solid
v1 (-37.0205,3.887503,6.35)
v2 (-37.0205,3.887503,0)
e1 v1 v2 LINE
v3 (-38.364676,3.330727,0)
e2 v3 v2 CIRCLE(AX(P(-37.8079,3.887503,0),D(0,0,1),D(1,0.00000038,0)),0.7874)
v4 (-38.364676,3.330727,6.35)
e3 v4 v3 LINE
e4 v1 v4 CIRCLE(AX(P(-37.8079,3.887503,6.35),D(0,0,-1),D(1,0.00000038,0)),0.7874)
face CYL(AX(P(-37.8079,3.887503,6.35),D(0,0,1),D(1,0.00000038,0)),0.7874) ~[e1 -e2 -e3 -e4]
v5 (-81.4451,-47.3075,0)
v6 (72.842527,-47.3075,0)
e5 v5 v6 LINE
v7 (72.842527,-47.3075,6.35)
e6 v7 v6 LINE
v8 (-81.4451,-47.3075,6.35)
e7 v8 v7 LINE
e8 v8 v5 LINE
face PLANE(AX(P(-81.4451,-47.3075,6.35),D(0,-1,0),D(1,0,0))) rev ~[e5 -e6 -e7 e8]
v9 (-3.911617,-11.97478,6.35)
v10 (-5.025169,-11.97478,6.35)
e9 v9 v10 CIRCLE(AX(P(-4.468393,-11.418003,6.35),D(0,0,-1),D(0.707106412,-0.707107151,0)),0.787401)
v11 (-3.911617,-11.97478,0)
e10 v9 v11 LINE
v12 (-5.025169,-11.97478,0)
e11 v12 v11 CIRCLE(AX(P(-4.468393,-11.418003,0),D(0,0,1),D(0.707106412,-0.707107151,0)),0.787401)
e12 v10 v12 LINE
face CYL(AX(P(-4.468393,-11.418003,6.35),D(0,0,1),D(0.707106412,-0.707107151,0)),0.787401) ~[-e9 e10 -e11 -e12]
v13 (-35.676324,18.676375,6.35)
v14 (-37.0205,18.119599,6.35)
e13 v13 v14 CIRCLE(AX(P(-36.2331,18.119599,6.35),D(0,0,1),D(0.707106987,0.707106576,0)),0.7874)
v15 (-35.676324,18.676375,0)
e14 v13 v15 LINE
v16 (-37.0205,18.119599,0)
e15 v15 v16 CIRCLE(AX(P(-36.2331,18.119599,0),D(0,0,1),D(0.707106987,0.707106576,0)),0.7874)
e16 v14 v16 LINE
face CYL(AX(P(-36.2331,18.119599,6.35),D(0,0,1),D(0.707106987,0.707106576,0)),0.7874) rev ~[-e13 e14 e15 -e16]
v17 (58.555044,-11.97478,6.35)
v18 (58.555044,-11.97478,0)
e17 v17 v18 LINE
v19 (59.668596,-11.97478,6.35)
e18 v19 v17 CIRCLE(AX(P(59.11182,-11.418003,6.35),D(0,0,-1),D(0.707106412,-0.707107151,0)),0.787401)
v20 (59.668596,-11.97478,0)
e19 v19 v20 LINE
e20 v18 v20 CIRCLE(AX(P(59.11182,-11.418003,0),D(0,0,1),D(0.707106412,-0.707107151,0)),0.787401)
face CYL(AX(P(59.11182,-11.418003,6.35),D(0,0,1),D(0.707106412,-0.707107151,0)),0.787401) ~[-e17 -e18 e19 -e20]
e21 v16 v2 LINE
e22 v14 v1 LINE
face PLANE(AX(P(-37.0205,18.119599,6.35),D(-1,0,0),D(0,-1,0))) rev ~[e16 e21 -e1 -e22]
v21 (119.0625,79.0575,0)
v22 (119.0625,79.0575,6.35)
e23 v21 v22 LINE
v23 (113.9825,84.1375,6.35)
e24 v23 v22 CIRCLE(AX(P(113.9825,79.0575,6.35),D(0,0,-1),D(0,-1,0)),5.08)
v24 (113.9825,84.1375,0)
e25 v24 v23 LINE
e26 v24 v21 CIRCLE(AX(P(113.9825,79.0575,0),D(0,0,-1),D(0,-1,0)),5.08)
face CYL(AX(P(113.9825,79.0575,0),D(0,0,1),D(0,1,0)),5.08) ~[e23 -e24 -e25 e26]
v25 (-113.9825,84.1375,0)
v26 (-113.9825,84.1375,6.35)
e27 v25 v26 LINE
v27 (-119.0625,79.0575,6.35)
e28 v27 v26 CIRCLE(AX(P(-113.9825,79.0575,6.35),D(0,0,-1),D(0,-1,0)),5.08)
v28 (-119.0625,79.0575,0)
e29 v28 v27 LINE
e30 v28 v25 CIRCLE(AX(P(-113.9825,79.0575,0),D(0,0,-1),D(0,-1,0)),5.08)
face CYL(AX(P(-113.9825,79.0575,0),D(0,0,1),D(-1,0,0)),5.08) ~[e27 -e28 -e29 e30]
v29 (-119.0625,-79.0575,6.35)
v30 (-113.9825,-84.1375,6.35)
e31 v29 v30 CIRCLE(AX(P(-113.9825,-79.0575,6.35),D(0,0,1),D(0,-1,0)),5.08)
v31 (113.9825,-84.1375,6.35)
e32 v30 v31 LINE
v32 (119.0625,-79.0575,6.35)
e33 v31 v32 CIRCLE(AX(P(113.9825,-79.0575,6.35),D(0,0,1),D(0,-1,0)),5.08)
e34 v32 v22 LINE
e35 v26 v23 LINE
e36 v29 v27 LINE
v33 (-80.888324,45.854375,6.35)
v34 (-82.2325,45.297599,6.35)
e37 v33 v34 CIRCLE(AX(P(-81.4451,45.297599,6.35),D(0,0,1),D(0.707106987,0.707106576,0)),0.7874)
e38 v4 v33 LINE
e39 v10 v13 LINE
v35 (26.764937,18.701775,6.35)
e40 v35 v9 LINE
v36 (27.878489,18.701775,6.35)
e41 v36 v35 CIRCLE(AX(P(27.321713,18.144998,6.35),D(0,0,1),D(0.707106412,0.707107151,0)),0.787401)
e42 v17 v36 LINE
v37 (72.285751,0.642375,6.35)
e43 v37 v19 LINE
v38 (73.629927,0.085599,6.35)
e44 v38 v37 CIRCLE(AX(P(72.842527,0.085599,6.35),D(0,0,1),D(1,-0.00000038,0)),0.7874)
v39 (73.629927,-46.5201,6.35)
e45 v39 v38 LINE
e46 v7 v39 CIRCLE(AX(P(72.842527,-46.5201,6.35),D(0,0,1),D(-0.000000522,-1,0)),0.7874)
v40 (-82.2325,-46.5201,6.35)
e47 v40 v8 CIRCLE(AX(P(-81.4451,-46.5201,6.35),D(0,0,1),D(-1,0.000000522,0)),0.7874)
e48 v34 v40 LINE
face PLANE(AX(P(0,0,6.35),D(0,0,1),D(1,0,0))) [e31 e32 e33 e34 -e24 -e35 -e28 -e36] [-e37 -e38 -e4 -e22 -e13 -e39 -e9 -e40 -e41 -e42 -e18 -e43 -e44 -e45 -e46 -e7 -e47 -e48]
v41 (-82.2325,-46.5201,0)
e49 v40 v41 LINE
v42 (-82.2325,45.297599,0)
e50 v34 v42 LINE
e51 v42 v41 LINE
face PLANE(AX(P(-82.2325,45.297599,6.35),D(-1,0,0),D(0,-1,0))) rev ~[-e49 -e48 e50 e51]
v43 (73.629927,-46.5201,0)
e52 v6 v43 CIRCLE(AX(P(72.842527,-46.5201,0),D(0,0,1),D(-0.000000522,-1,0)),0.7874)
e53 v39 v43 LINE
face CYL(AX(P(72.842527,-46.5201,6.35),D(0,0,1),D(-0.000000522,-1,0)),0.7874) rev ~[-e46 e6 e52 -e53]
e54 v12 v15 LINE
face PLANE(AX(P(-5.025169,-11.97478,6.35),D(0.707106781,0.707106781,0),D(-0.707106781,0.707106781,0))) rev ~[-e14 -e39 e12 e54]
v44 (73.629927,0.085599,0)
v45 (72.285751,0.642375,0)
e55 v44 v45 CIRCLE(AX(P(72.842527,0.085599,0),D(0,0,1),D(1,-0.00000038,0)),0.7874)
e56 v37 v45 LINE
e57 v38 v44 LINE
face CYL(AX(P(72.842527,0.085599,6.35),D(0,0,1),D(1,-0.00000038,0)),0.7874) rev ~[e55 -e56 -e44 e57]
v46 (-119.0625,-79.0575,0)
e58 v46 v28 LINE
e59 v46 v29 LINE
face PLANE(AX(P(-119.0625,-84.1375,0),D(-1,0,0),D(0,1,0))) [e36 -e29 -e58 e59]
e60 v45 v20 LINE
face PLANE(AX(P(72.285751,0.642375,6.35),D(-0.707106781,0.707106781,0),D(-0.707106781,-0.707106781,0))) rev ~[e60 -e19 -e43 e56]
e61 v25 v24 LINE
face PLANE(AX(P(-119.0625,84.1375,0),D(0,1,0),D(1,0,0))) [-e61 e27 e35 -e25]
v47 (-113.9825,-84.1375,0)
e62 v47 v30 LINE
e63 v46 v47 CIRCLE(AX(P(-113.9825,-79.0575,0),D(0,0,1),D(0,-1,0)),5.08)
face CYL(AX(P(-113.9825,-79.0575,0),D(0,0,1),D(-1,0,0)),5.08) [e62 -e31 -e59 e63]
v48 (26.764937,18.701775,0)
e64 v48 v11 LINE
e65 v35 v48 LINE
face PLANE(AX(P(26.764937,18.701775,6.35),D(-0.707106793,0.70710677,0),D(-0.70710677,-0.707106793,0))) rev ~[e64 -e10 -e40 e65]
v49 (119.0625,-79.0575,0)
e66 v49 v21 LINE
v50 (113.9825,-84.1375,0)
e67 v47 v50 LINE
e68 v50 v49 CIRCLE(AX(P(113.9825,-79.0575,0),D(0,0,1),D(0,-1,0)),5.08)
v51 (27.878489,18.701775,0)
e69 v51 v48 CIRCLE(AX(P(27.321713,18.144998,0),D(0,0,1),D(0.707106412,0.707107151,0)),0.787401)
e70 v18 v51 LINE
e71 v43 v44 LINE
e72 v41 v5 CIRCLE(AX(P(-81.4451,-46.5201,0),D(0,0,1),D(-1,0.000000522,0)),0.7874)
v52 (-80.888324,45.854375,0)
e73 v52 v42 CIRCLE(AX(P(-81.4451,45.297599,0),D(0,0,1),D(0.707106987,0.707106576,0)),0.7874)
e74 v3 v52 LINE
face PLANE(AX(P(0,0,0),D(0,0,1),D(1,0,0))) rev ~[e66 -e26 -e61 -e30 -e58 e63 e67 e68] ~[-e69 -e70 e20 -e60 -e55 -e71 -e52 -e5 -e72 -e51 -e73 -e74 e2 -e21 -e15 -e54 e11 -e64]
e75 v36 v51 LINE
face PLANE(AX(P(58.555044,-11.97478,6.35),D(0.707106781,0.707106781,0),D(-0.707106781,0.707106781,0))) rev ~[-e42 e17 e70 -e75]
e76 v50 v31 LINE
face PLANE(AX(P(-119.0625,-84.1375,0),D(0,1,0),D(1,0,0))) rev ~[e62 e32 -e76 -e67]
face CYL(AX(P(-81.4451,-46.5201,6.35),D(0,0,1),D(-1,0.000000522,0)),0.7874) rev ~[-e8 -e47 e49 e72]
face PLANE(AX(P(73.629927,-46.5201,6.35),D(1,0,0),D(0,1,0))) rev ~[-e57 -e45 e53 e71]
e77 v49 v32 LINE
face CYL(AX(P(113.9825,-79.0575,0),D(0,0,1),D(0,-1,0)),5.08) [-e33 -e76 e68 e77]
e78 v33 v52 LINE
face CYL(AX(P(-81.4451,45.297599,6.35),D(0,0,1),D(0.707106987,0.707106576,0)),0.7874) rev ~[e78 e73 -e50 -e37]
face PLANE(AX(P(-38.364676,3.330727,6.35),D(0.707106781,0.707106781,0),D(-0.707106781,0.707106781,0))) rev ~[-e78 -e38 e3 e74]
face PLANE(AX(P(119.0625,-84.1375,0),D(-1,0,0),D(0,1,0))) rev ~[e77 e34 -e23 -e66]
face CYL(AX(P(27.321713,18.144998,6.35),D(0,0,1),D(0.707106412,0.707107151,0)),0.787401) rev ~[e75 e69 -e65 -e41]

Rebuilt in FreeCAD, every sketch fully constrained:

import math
import FreeCAD as App
import Part
import Sketcher

V = App.Vector
Q = App.Units.Quantity


def edges_at(feature, points):
    """Names of the edges that pass closest to the given points."""
    edges = feature.Shape.Edges
    near = lambda p: min(range(len(edges)), key=lambda i: edges[i].distToShape(Part.Vertex(*p))[0])
    return sorted({f"Edge{near(p) + 1}" for p in points})


def add_polygon(sketch, points):
    """Adds a closed chain of lines whose ends are joined by coincident constraints."""
    first, n = sketch.GeometryCount, len(points)
    for a, b in zip(points, points[1:] + points[:1]):
        sketch.addGeometry(Part.LineSegment(App.Vector(*a, 0), App.Vector(*b, 0)), False)
    for i in range(n):
        sketch.addConstraint(Sketcher.Constraint("Coincident", first + i, 2, first + (i + 1) % n, 1))

doc = App.newDocument("Part")
body = doc.addObject("PartDesign::Body", "Body")

# Sketch on XY plane
sketch1 = body.newObject("Sketcher::SketchObject", "Sketch")
sketch1.AttachmentSupport = (doc.getObject("XY_Plane"), [""])
sketch1.MapMode = "FlatFace"
add_polygon(sketch1, [(-119, 84), (-119, -84), (119, -84), (119, 84)])  # lines 0-3
sketch1.addConstraint(Sketcher.Constraint("Vertical", 0))
sketch1.addConstraint(Sketcher.Constraint("Horizontal", 1))
sketch1.addConstraint(Sketcher.Constraint("Vertical", 2))
sketch1.addConstraint(Sketcher.Constraint("Horizontal", 3))
sketch1.addConstraint(Sketcher.Constraint("Symmetric", 0, 2, 2, 2, -1, 1))
sketch1.addConstraint(Sketcher.Constraint("DistanceX", 1, 1, 1, 2, Q("9.375 in")))
sketch1.addConstraint(Sketcher.Constraint("DistanceY", 0, 2, 0, 1, Q("6.625 in")))
pad1 = body.newObject("PartDesign::Pad", "Pad")
pad1.Profile = sketch1
pad1.Length = Q("0.25 in")

# Sketch on XY plane
sketch2 = body.newObject("Sketcher::SketchObject", "Sketch001")
sketch2.AttachmentSupport = (doc.getObject("XY_Plane"), [""])
sketch2.MapMode = "FlatFace"
sketch2.AttachmentOffset = App.Placement(V(0, 0, 0.25 * 25.4), App.Rotation())
add_polygon(sketch2, [(-36, -1), (-81, 44), (-81, -46), (72, -46), (72, -1), (59, -14), (27, 17), (-4, -14), (-36, 17)])  # lines 0-8
sketch2.addConstraint(Sketcher.Constraint("Vertical", 1))
sketch2.addConstraint(Sketcher.Constraint("Horizontal", 2))
sketch2.addConstraint(Sketcher.Constraint("Vertical", 3))
sketch2.addConstraint(Sketcher.Constraint("Vertical", 8))
sketch2.addConstraint(Sketcher.Constraint("Perpendicular", 0, 4))
sketch2.addConstraint(Sketcher.Constraint("Perpendicular", 4, 5))
sketch2.addConstraint(Sketcher.Constraint("Perpendicular", 5, 6))
sketch2.addConstraint(Sketcher.Constraint("Perpendicular", 6, 7))
sketch2.addConstraint(Sketcher.Constraint("Horizontal", 4, 2, 6, 2))
sketch2.addConstraint(Sketcher.Constraint("Horizontal", 3, 2, 8, 2))
sketch2.addConstraint(Sketcher.Constraint("Equal", 5, 6))
sketch2.addConstraint(Sketcher.Constraint("DistanceY", 1, 2, 1, 1, Q("3.55 in")))
sketch2.addConstraint(Sketcher.Constraint("DistanceY", 3, 1, 3, 2, Q("1.77 in")))
sketch2.addConstraint(Sketcher.Constraint("DistanceY", 8, 2, 8, 1, Q("0.71 in")))
sketch2.addConstraint(Sketcher.Constraint("DistanceY", 2, 2, 5, 2, Q("2.5 in")))
sketch2.addConstraint(Sketcher.Constraint("Distance", 5, Q("1.77 in")))
sketch2.addConstraint(Sketcher.Constraint("DistanceX", 0, 2, -1, 1, Q("3.1875 in")))
sketch2.addConstraint(Sketcher.Constraint("DistanceY", 1, 2, -1, 1, Q("1.8125 in")))
pocket1 = body.newObject("PartDesign::Pocket", "Pocket")
pocket1.Profile = sketch2
pocket1.Length = Q("1 in")

# Sketch on XY plane
sketch3 = body.newObject("Sketcher::SketchObject", "Sketch002")
sketch3.AttachmentSupport = (doc.getObject("XY_Plane"), [""])
sketch3.MapMode = "FlatFace"
sketch3.AttachmentOffset = App.Placement(V(0, 0, 0.25 * 25.4), App.Rotation())
sketch3.addGeometry(Part.ArcOfCircle(Part.Circle(V(-36.2, 18.1, 0), V(0, 0, 1), 0.8), math.radians(45), math.radians(180)), False)
sketch3.addGeometry(Part.LineSegment(V(-37, 18.1, 0), V(-37, 3.9, 0)), False)
sketch3.addGeometry(Part.ArcOfCircle(Part.Circle(V(-37.8, 3.9, 0), V(0, 0, 1), 0.8), math.radians(-135), math.radians(0)), False)
sketch3.addGeometry(Part.LineSegment(V(-38.4, 3.3, 0), V(-80.9, 45.9, 0)), False)
sketch3.addGeometry(Part.ArcOfCircle(Part.Circle(V(-81.4, 45.3, 0), V(0, 0, 1), 0.8), math.radians(45), math.radians(180)), False)
sketch3.addGeometry(Part.LineSegment(V(-82.2, 45.3, 0), V(-82.2, -46.5, 0)), False)
sketch3.addGeometry(Part.ArcOfCircle(Part.Circle(V(-81.4, -46.5, 0), V(0, 0, 1), 0.8), math.radians(180), math.radians(270)), False)
sketch3.addGeometry(Part.LineSegment(V(-81.4, -47.3, 0), V(72.8, -47.3, 0)), False)
sketch3.addGeometry(Part.ArcOfCircle(Part.Circle(V(72.8, -46.5, 0), V(0, 0, 1), 0.8), math.radians(-90), math.radians(0)), False)
sketch3.addGeometry(Part.LineSegment(V(73.6, -46.5, 0), V(73.6, 0.1, 0)), False)
sketch3.addGeometry(Part.ArcOfCircle(Part.Circle(V(72.8, 0.1, 0), V(0, 0, 1), 0.8), math.radians(0), math.radians(135)), False)
sketch3.addGeometry(Part.LineSegment(V(72.3, 0.6, 0), V(59.7, -12, 0)), False)
sketch3.addGeometry(Part.ArcOfCircle(Part.Circle(V(59.1, -11.4, 0), V(0, 0, 1), 0.8), math.radians(-135), math.radians(-45)), False)
sketch3.addGeometry(Part.LineSegment(V(58.6, -12, 0), V(27.9, 18.7, 0)), False)
sketch3.addGeometry(Part.ArcOfCircle(Part.Circle(V(27.3, 18.1, 0), V(0, 0, 1), 0.8), math.radians(45), math.radians(135)), False)
sketch3.addGeometry(Part.LineSegment(V(26.8, 18.7, 0), V(-3.9, -12, 0)), False)
sketch3.addGeometry(Part.ArcOfCircle(Part.Circle(V(-4.5, -11.4, 0), V(0, 0, 1), 0.8), math.radians(-135), math.radians(-45)), False)
sketch3.addGeometry(Part.LineSegment(V(-5, -12, 0), V(-35.7, 18.7, 0)), False)
sketch3.addConstraint(Sketcher.Constraint("Tangent", 0, 2, 1, 1))
sketch3.addConstraint(Sketcher.Constraint("Tangent", 1, 2, 2, 2))
sketch3.addConstraint(Sketcher.Constraint("Tangent", 2, 1, 3, 1))
sketch3.addConstraint(Sketcher.Constraint("Tangent", 3, 2, 4, 1))
sketch3.addConstraint(Sketcher.Constraint("Tangent", 4, 2, 5, 1))
sketch3.addConstraint(Sketcher.Constraint("Tangent", 5, 2, 6, 1))
sketch3.addConstraint(Sketcher.Constraint("Tangent", 6, 2, 7, 1))
sketch3.addConstraint(Sketcher.Constraint("Tangent", 7, 2, 8, 1))
sketch3.addConstraint(Sketcher.Constraint("Tangent", 8, 2, 9, 1))
sketch3.addConstraint(Sketcher.Constraint("Tangent", 9, 2, 10, 1))
sketch3.addConstraint(Sketcher.Constraint("Tangent", 10, 2, 11, 1))
sketch3.addConstraint(Sketcher.Constraint("Tangent", 11, 2, 12, 2))
sketch3.addConstraint(Sketcher.Constraint("Tangent", 12, 1, 13, 1))
sketch3.addConstraint(Sketcher.Constraint("Tangent", 13, 2, 14, 1))
sketch3.addConstraint(Sketcher.Constraint("Tangent", 14, 2, 15, 1))
sketch3.addConstraint(Sketcher.Constraint("Tangent", 15, 2, 16, 2))
sketch3.addConstraint(Sketcher.Constraint("Tangent", 16, 1, 17, 1))
sketch3.addConstraint(Sketcher.Constraint("Tangent", 17, 2, 0, 1))
sketch3.addConstraint(Sketcher.Constraint("Vertical", 1))
sketch3.addConstraint(Sketcher.Constraint("Vertical", 5))
sketch3.addConstraint(Sketcher.Constraint("Horizontal", 7))
sketch3.addConstraint(Sketcher.Constraint("Vertical", 9))
sketch3.addConstraint(Sketcher.Constraint("Equal", 0, 2))
sketch3.addConstraint(Sketcher.Constraint("Equal", 2, 4))
sketch3.addConstraint(Sketcher.Constraint("Equal", 4, 6))
sketch3.addConstraint(Sketcher.Constraint("Equal", 6, 8))
sketch3.addConstraint(Sketcher.Constraint("Equal", 8, 10))
sketch3.addConstraint(Sketcher.Constraint("Equal", 10, 12))
sketch3.addConstraint(Sketcher.Constraint("Equal", 12, 14))
sketch3.addConstraint(Sketcher.Constraint("Equal", 14, 16))
sketch3.addConstraint(Sketcher.Constraint("Perpendicular", 3, 11))
sketch3.addConstraint(Sketcher.Constraint("Perpendicular", 11, 13))
sketch3.addConstraint(Sketcher.Constraint("Perpendicular", 13, 15))
sketch3.addConstraint(Sketcher.Constraint("Perpendicular", 15, 17))
sketch3.addConstraint(Sketcher.Constraint("Horizontal", 12, 3, 16, 3))
sketch3.addConstraint(Sketcher.Constraint("Horizontal", 11, 2, 12, 1))
sketch3.addConstraint(Sketcher.Constraint("Radius", 0, Q("0.031 in")))
sketch3.addConstraint(Sketcher.Constraint("DistanceX", 4, 3, 0, 3, Q("1.78 in")))
sketch3.addConstraint(Sketcher.Constraint("DistanceY", 0, 3, 4, 3, Q("1.07 in")))
sketch3.addConstraint(Sketcher.Constraint("DistanceY", 10, 3, 0, 3, Q("0.71 in")))
sketch3.addConstraint(Sketcher.Constraint("Distance", 13, Q("1.708 in")))
sketch3.addConstraint(Sketcher.Constraint("DistanceY", 10, 3, 14, 3, Q("0.711 in")))
sketch3.addConstraint(Sketcher.Constraint("DistanceY", 5, 2, 5, 1, 91.817699))
sketch3.addConstraint(Sketcher.Constraint("DistanceX", 0, 3, -1, 1, Q("1.4265 in")))
sketch3.addConstraint(Sketcher.Constraint("DistanceY", 6, 3, -1, 1, Q("1.8315 in")))
pocket2 = body.newObject("PartDesign::Pocket", "Pocket001")
pocket2.Profile = sketch3
pocket2.Length = Q("1 in")
doc.recompute()

fillet = body.newObject("PartDesign::Fillet", "Fillet")
fillet.Base = (pocket2, edges_at(pocket2, [
    (119.062, 84.138, 3.175),
    (119.062, -84.138, 3.175),
    (-119.062, 84.138, 3.175),
    (-119.062, -84.138, 3.175),
]))
fillet.Radius = Q("0.2 in")

doc.recompute()
